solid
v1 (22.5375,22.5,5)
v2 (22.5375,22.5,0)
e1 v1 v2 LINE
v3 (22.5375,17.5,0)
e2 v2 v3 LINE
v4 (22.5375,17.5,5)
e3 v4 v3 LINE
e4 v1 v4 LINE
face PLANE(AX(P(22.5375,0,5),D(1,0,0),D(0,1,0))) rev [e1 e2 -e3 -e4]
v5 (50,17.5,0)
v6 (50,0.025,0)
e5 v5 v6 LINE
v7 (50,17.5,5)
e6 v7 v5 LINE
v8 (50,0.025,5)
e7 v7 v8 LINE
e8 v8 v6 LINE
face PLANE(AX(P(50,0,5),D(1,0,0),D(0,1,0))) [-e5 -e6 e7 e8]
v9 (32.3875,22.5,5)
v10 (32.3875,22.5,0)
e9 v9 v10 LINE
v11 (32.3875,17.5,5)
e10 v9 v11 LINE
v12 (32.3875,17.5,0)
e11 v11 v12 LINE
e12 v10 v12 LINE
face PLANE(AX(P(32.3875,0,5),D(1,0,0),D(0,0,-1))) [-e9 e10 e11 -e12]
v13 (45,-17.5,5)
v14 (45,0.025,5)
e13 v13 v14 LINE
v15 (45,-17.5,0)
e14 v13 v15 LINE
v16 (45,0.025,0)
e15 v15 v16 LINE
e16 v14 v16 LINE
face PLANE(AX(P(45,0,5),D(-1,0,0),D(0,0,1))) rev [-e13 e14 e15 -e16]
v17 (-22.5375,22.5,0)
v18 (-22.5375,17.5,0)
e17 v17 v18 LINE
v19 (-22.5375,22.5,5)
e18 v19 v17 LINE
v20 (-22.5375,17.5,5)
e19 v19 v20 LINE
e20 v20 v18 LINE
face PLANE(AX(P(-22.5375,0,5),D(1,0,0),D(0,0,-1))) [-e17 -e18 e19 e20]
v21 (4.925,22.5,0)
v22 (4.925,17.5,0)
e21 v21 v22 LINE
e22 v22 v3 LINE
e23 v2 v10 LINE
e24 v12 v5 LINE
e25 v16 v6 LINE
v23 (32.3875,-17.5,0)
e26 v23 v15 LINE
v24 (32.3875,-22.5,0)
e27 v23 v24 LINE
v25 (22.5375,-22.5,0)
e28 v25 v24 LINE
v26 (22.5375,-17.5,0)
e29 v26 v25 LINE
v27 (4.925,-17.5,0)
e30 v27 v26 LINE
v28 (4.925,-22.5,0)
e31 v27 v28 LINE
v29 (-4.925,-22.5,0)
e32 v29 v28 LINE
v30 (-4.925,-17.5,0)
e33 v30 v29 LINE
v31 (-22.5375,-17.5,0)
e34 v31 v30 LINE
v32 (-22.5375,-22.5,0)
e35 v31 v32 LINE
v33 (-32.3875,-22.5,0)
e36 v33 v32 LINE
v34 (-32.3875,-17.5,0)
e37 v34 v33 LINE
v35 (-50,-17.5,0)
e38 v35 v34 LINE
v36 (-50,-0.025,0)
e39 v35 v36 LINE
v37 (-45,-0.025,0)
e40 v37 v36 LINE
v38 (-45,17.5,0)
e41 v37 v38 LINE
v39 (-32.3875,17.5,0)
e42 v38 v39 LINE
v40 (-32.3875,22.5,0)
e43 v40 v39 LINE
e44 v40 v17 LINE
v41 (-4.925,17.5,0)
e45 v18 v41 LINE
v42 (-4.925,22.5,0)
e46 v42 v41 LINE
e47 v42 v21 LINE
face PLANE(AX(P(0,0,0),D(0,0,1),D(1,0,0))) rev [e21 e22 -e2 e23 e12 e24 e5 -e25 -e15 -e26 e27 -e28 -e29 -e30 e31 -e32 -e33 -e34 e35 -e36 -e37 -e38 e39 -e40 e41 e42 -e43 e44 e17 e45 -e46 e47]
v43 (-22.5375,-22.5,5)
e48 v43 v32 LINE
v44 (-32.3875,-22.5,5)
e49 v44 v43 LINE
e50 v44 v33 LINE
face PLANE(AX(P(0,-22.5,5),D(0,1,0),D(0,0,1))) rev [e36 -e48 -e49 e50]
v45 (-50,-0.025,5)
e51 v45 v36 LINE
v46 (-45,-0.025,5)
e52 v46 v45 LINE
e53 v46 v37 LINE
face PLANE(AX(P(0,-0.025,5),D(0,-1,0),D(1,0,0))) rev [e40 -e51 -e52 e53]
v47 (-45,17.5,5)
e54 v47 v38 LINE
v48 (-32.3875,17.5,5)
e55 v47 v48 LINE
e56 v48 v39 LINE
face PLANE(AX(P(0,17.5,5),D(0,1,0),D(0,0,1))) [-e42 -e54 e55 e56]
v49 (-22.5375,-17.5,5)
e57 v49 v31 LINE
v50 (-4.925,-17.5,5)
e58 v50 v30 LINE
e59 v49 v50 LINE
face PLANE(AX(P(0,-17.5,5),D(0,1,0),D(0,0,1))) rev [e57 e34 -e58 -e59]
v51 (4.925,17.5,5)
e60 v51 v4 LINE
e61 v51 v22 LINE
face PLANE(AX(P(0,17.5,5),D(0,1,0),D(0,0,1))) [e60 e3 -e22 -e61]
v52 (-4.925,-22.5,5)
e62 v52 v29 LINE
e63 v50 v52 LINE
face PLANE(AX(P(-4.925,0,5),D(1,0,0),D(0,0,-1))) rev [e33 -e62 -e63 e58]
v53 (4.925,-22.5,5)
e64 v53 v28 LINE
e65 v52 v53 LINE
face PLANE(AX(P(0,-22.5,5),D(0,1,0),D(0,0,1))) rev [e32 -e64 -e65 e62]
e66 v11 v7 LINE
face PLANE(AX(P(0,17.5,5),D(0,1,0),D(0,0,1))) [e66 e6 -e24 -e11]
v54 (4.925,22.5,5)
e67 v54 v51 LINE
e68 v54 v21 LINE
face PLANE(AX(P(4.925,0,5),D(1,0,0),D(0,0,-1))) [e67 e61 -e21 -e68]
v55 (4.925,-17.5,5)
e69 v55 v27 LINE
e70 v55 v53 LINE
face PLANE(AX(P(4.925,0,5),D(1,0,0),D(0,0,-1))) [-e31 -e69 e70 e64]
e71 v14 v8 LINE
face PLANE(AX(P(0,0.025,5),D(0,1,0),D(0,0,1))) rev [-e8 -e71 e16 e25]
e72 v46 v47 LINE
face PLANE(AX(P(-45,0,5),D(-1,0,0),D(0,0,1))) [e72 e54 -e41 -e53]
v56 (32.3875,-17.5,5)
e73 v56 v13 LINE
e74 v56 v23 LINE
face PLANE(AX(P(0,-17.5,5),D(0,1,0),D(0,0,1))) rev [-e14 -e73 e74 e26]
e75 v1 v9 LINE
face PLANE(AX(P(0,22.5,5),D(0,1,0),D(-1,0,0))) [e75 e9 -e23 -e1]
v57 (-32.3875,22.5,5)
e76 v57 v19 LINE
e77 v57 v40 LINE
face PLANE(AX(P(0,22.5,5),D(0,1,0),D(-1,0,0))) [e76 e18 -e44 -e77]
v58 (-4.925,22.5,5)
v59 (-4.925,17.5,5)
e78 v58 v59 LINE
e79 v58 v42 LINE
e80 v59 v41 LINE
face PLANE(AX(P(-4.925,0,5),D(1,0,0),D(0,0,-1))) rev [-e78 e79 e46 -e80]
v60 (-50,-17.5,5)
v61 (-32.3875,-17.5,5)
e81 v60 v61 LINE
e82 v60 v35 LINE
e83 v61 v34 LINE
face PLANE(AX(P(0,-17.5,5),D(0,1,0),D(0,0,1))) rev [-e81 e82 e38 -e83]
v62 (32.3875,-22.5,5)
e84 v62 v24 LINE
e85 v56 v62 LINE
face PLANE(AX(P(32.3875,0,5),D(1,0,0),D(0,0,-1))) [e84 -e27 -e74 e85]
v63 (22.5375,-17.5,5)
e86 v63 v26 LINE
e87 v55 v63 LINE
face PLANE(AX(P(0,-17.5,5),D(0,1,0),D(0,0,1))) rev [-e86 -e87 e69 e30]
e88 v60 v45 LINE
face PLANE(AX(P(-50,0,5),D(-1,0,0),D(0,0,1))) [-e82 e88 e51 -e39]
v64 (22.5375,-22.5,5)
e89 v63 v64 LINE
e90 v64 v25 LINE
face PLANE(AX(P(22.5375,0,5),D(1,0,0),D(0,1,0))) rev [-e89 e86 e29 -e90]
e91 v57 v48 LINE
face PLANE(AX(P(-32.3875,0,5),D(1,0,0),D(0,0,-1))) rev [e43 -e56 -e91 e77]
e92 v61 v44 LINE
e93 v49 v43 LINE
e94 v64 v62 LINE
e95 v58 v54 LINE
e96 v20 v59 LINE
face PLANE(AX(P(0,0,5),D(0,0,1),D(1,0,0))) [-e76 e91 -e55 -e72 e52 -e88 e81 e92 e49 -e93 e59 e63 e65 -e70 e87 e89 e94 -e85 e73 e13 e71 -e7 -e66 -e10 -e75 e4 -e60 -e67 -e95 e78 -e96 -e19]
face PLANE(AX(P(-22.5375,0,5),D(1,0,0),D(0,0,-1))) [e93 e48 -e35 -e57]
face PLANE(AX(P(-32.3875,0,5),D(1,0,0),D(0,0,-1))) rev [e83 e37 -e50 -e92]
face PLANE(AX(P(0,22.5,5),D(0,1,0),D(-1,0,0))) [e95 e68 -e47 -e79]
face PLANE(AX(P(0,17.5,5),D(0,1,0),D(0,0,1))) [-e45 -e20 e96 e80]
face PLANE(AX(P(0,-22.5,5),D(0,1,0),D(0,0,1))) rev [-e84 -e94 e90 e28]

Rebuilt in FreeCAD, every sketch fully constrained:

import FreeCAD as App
import Part
import Sketcher

V = App.Vector


def add_polygon(sketch, points):
    """Adds a closed chain of lines whose ends are joined by coincident constraints."""
    first, n = sketch.GeometryCount, len(points)
    for a, b in zip(points, points[1:] + points[:1]):
        sketch.addGeometry(Part.LineSegment(App.Vector(*a, 0), App.Vector(*b, 0)), False)
    for i in range(n):
        sketch.addConstraint(Sketcher.Constraint("Coincident", first + i, 2, first + (i + 1) % n, 1))

doc = App.newDocument("Part")
body = doc.addObject("PartDesign::Body", "Body")

sketch1 = doc.addObject("Sketcher::SketchObject", "Sketch")
body.addObject(sketch1)
sketch1.AttachmentSupport = (doc.XY_Plane, [""])
sketch1.MapMode = "FlatFace"
add_polygon(sketch1, [(-45, 17.5), (-45, -0.025), (-50, -0.025), (-50, -17.5), (-32.3875, -17.5), (-32.3875, -22.5), (-22.5375, -22.5), (-22.5375, -17.5), (-4.925, -17.5), (-4.925, -22.5), (4.925, -22.5), (4.925, -17.5), (22.5375, -17.5), (22.5375, -22.5), (32.3875, -22.5), (32.3875, -17.5), (45, -17.5), (45, 0.025), (50, 0.025), (50, 17.5), (32.3875, 17.5), (32.3875, 22.5), (22.5375, 22.5), (22.5375, 17.5), (4.925, 17.5), (4.925, 22.5), (-4.925, 22.5), (-4.925, 17.5), (-22.5375, 17.5), (-22.5375, 22.5), (-32.3875, 22.5), (-32.3875, 17.5)])
sketch1.addConstraint([
    Sketcher.Constraint("Vertical", 0),
    Sketcher.Constraint("Horizontal", 1),
    Sketcher.Constraint("Vertical", 2),
    Sketcher.Constraint("Horizontal", 3),
    Sketcher.Constraint("Vertical", 4),
    Sketcher.Constraint("Horizontal", 5),
    Sketcher.Constraint("Vertical", 6),
    Sketcher.Constraint("Horizontal", 7),
    Sketcher.Constraint("Vertical", 8),
    Sketcher.Constraint("Horizontal", 9),
    Sketcher.Constraint("Vertical", 10),
    Sketcher.Constraint("Horizontal", 11),
    Sketcher.Constraint("Vertical", 12),
    Sketcher.Constraint("Horizontal", 13),
    Sketcher.Constraint("Vertical", 14),
    Sketcher.Constraint("Horizontal", 15),
    Sketcher.Constraint("Vertical", 16),
    Sketcher.Constraint("Horizontal", 17),
    Sketcher.Constraint("Vertical", 18),
    Sketcher.Constraint("Horizontal", 19),
    Sketcher.Constraint("Vertical", 20),
    Sketcher.Constraint("Horizontal", 21),
    Sketcher.Constraint("Vertical", 22),
    Sketcher.Constraint("Horizontal", 23),
    Sketcher.Constraint("Vertical", 24),
    Sketcher.Constraint("Horizontal", 25),
    Sketcher.Constraint("Vertical", 26),
    Sketcher.Constraint("Horizontal", 27),
    Sketcher.Constraint("Vertical", 28),
    Sketcher.Constraint("Horizontal", 29),
    Sketcher.Constraint("Vertical", 30),
    Sketcher.Constraint("Horizontal", 31),
    Sketcher.Constraint("Symmetric", 0, 2, 16, 2, -1, 1),
    Sketcher.Constraint("Symmetric", 2, 2, 18, 2, -1, 1),
    Sketcher.Constraint("Symmetric", 4, 2, 20, 2, -1, 1),
    Sketcher.Constraint("Symmetric", 6, 2, 22, 2, -1, 1),
    Sketcher.Constraint("Symmetric", 8, 2, 24, 2, -1, 1),
    Sketcher.Constraint("Symmetric", 10, 2, 26, 2, -1, 1),
    Sketcher.Constraint("Symmetric", 12, 2, 28, 2, -1, 1),
    Sketcher.Constraint("Symmetric", 14, 2, 30, 2, -1, 1),
    Sketcher.Constraint("Symmetric", 7, 2, 10, 2, -2),
    Sketcher.Constraint("Symmetric", 5, 2, 12, 2, -2),
    Sketcher.Constraint("Symmetric", 3, 2, 14, 2, -2),
    Sketcher.Constraint("Horizontal", 3, 2, 6, 2),
    Sketcher.Constraint("Horizontal", 5, 2, 8, 2),
    Sketcher.Constraint("Equal", 3, 7),
    Sketcher.Constraint("Equal", 5, 9),
    Sketcher.Constraint("Equal", 17, 4),
    Sketcher.Constraint("DistanceX", 1, 2, 1, 1, 5.0),
    Sketcher.Constraint("DistanceX", 0, 2, -1, 1, 45.0),
    Sketcher.Constraint("DistanceY", 15, 2, 18, 2, 35.0),
    Sketcher.Constraint("DistanceX", 5, 1, 5, 2, 9.85),
    Sketcher.Constraint("DistanceY", 0, 2, 0, 1, 17.525),
])
pad1 = doc.addObject("PartDesign::Pad", "Pad")
body.addObject(pad1)
pad1.Profile = sketch1
pad1.Length = 5

doc.recompute()
